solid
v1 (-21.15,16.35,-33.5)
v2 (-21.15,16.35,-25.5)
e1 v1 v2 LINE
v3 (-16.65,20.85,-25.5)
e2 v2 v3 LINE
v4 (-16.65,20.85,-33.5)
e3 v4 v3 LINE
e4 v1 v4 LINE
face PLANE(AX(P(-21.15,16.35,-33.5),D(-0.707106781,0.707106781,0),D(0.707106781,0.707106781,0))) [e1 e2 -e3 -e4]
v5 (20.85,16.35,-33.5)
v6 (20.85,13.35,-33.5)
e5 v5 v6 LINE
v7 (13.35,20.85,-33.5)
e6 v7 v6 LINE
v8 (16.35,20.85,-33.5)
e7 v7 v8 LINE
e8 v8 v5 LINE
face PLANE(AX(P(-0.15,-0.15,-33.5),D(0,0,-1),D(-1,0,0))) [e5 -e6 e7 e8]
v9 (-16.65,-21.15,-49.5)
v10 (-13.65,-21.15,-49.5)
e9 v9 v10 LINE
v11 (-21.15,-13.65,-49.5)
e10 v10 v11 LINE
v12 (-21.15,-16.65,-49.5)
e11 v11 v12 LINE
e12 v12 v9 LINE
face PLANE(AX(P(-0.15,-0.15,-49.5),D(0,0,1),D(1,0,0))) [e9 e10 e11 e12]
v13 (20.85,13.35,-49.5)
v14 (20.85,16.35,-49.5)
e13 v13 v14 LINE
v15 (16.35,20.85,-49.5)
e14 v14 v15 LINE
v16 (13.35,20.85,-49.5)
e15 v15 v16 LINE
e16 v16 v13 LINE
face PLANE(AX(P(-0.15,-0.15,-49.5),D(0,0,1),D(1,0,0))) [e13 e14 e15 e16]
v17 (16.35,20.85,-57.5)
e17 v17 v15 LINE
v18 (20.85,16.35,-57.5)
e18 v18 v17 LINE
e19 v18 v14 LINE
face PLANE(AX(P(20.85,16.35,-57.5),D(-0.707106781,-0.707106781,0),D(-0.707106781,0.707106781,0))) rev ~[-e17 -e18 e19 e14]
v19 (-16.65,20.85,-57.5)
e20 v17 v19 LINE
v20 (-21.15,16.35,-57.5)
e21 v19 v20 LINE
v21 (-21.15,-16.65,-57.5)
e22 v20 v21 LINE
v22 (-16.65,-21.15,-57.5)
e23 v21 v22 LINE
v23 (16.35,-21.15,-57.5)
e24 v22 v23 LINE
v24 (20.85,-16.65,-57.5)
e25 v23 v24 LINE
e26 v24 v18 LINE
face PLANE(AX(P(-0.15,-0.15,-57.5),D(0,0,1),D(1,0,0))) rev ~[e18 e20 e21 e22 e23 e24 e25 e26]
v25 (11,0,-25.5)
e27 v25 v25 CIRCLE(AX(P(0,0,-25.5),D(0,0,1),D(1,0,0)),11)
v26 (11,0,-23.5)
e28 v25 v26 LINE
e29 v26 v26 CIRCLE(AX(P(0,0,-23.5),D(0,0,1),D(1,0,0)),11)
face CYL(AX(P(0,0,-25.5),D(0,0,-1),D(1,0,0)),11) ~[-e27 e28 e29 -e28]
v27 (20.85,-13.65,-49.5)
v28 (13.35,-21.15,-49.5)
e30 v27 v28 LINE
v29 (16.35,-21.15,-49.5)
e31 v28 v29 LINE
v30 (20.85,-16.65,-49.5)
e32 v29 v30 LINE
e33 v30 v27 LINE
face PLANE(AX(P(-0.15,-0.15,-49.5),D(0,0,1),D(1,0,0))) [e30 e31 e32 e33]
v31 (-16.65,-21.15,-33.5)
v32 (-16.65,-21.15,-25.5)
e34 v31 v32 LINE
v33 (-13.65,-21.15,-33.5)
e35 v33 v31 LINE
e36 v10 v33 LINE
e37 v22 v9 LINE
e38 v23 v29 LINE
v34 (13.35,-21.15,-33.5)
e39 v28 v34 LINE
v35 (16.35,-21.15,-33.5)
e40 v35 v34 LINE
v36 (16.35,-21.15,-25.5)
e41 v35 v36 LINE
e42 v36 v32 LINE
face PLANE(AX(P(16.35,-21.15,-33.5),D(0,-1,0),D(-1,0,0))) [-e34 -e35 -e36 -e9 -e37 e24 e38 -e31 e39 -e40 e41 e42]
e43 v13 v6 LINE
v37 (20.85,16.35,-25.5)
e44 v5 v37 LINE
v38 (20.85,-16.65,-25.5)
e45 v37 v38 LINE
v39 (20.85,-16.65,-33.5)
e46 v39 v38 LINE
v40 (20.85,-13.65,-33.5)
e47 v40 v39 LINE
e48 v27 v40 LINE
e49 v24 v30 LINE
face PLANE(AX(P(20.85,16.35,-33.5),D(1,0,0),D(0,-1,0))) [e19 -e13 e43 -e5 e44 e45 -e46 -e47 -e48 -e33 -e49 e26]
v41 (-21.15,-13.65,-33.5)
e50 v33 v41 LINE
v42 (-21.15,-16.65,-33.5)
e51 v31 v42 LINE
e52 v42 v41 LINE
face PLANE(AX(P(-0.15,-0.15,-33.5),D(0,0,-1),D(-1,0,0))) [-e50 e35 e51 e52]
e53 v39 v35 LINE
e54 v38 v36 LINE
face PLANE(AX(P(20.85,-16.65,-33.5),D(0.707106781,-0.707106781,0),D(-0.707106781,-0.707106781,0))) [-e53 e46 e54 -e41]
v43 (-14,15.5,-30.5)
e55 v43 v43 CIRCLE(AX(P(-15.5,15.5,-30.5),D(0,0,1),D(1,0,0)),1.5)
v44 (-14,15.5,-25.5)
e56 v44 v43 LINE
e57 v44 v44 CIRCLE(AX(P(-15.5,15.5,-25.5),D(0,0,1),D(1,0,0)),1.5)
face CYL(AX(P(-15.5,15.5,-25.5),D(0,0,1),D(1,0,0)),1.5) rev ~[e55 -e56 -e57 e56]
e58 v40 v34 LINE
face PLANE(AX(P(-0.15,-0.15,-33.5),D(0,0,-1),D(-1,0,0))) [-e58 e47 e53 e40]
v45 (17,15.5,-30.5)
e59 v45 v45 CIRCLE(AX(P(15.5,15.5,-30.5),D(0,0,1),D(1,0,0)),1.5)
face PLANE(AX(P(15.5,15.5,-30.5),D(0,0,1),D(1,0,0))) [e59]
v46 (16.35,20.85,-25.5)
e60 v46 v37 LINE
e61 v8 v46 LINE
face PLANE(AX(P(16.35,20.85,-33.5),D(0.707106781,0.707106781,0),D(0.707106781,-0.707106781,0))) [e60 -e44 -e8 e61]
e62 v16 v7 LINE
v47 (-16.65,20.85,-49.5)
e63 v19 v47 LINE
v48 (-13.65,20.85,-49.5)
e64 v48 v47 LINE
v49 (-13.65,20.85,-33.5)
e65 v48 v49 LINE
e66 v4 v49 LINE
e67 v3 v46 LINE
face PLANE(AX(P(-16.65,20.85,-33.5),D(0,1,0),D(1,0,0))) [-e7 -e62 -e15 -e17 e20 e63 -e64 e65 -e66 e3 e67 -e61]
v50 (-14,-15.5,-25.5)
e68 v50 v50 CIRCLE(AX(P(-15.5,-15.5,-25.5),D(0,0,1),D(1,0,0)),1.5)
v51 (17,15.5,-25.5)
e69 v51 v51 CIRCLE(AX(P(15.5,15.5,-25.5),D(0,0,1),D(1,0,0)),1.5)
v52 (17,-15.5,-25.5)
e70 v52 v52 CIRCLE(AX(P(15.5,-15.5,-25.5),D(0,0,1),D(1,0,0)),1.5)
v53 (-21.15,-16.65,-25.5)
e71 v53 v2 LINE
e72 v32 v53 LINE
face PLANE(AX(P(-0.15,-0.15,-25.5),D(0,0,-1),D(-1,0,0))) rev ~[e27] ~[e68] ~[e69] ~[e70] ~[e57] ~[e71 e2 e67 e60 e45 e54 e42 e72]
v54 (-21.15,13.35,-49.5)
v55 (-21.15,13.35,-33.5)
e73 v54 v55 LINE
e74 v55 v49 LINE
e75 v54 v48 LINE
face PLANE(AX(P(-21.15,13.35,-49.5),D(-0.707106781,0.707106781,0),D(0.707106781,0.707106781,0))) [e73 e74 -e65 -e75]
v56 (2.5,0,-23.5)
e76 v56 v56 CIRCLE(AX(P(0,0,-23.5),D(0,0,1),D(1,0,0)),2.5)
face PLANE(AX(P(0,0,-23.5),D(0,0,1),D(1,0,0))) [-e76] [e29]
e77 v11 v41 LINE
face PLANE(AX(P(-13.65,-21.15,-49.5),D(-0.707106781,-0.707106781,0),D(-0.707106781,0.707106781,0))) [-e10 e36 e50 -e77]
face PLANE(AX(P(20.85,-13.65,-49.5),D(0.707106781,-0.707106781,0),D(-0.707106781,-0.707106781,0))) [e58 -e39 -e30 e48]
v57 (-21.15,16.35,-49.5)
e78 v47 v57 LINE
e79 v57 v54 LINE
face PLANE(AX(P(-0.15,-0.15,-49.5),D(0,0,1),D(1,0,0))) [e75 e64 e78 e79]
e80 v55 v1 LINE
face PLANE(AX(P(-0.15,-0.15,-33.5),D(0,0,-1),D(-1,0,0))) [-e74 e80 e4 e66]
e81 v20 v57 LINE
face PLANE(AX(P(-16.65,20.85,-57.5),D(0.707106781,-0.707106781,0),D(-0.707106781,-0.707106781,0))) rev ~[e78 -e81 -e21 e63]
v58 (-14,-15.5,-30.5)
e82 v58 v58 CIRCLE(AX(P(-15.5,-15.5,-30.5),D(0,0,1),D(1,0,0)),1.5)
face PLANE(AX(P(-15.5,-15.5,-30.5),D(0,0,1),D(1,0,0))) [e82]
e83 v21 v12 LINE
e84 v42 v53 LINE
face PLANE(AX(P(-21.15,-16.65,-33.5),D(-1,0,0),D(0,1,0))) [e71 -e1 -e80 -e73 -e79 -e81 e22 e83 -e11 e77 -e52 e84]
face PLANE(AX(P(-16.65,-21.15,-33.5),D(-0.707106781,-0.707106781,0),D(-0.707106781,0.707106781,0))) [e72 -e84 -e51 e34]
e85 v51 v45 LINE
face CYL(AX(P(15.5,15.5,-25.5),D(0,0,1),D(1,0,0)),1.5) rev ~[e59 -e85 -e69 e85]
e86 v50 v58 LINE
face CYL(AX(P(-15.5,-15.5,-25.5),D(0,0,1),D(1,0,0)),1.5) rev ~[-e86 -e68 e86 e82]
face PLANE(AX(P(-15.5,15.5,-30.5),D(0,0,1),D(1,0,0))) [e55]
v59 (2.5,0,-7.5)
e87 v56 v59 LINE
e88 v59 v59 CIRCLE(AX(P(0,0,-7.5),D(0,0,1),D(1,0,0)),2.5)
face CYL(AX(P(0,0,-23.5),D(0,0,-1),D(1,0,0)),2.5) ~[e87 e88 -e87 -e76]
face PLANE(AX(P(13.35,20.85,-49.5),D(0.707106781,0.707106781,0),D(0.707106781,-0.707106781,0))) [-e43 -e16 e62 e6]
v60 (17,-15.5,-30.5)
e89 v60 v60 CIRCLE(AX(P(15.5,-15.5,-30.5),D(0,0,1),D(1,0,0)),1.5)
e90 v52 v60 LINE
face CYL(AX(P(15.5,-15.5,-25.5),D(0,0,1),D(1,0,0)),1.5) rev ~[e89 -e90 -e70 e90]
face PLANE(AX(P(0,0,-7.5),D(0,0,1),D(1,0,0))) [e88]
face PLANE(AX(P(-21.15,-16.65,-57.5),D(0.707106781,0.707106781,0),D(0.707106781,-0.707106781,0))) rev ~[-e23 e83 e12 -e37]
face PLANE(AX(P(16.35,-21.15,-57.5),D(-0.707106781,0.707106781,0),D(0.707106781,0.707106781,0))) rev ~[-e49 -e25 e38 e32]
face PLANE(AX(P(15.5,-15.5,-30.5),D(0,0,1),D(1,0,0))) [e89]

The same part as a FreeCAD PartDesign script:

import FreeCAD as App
import Part
import Sketcher

doc = App.newDocument("Part")
body = doc.addObject("PartDesign::Body", "Body")

# Sketch on XY plane
sketch1 = doc.addObject("Sketcher::SketchObject", "Sketch")
body.addObject(sketch1)
sketch1.AttachmentSupport = (doc.XY_Plane, [""])
sketch1.MapMode = "FlatFace"
sketch1.addGeometry([
    Part.LineSegment(App.Vector(4.5, -4.5, 0), App.Vector(37.5, -4.5, 0)),  # 0
    Part.LineSegment(App.Vector(37.5, -4.5, 0), App.Vector(42, 0, 0)),  # 1
    Part.LineSegment(App.Vector(42, 0, 0), App.Vector(42, 33, 0)),  # 2
    Part.LineSegment(App.Vector(42, 33, 0), App.Vector(37.5, 37.5, 0)),  # 3
    Part.LineSegment(App.Vector(37.5, 37.5, 0), App.Vector(4.5, 37.5, 0)),  # 4
    Part.LineSegment(App.Vector(4.5, 37.5, 0), App.Vector(0, 33, 0)),  # 5
    Part.LineSegment(App.Vector(0, 33, 0), App.Vector(0, 0, 0)),  # 6
    Part.LineSegment(App.Vector(0, 0, 0), App.Vector(4.5, -4.5, 0)),  # 7
], False)
sketch1.addConstraint([
    Sketcher.Constraint("Coincident", 0, 2, 1, 1),
    Sketcher.Constraint("Coincident", 1, 2, 2, 1),
    Sketcher.Constraint("Coincident", 2, 2, 3, 1),
    Sketcher.Constraint("Coincident", 3, 2, 4, 1),
    Sketcher.Constraint("Coincident", 4, 2, 5, 1),
    Sketcher.Constraint("Coincident", 5, 2, 6, 1),
    Sketcher.Constraint("Coincident", 6, 2, 7, 1),
    Sketcher.Constraint("Coincident", 7, 2, 0, 1),
    Sketcher.Constraint("Horizontal", 0),
    Sketcher.Constraint("Vertical", 2),
    Sketcher.Constraint("Horizontal", 4),
    Sketcher.Constraint("Vertical", 6),
    Sketcher.Constraint("Coincident", 6, 2, -1, 1),
    Sketcher.Constraint("PointOnObject", 1, 2, -1),
    Sketcher.Constraint("Perpendicular", 1, 3),
    Sketcher.Constraint("Perpendicular", 3, 5),
    Sketcher.Constraint("Perpendicular", 5, 7),
    Sketcher.Constraint("Horizontal", 2, 2, 5, 2),
    Sketcher.Constraint("Vertical", 0, 2, 3, 2),
    Sketcher.Constraint("Vertical", 4, 2, 7, 2),
    Sketcher.Constraint("Equal", 4, 2),
    Sketcher.Constraint("DistanceX", 0, 1, 0, 2, 33.0),
    Sketcher.Constraint("DistanceX", -1, 1, 1, 2, 42.0),
])
pad1 = doc.addObject("PartDesign::Pad", "Pad")
body.addObject(pad1)
pad1.Profile = sketch1
pad1.Length = 8

# Sketch on XY plane
sketch2 = doc.addObject("Sketcher::SketchObject", "Sketch001")
body.addObject(sketch2)
sketch2.AttachmentSupport = (doc.XY_Plane, [""])
sketch2.MapMode = "FlatFace"
sketch2.AttachmentOffset = App.Placement(App.Vector(0, 0, 8), App.Rotation())
sketch2.addGeometry([
    Part.LineSegment(App.Vector(34.5, 37.5, 0), App.Vector(7.5, 37.5, 0)),  # 0
    Part.LineSegment(App.Vector(7.5, 37.5, 0), App.Vector(0, 30, 0)),  # 1
    Part.LineSegment(App.Vector(0, 30, 0), App.Vector(0, 3, 0)),  # 2
    Part.LineSegment(App.Vector(0, 3, 0), App.Vector(7.5, -4.5, 0)),  # 3
    Part.LineSegment(App.Vector(7.5, -4.5, 0), App.Vector(34.5, -4.5, 0)),  # 4
    Part.LineSegment(App.Vector(34.5, -4.5, 0), App.Vector(42, 3, 0)),  # 5
    Part.LineSegment(App.Vector(42, 3, 0), App.Vector(42, 30, 0)),  # 6
    Part.LineSegment(App.Vector(42, 30, 0), App.Vector(34.5, 37.5, 0)),  # 7
], False)
sketch2.addConstraint([
    Sketcher.Constraint("Coincident", 0, 2, 1, 1),
    Sketcher.Constraint("Coincident", 1, 2, 2, 1),
    Sketcher.Constraint("Coincident", 2, 2, 3, 1),
    Sketcher.Constraint("Coincident", 3, 2, 4, 1),
    Sketcher.Constraint("Coincident", 4, 2, 5, 1),
    Sketcher.Constraint("Coincident", 5, 2, 6, 1),
    Sketcher.Constraint("Coincident", 6, 2, 7, 1),
    Sketcher.Constraint("Coincident", 7, 2, 0, 1),
    Sketcher.Constraint("Horizontal", 0),
    Sketcher.Constraint("Vertical", 2),
    Sketcher.Constraint("Horizontal", 4),
    Sketcher.Constraint("Vertical", 6),
    Sketcher.Constraint("PointOnObject", 1, 2, -2),
    Sketcher.Constraint("Perpendicular", 1, 3),
    Sketcher.Constraint("Perpendicular", 3, 5),
    Sketcher.Constraint("Perpendicular", 5, 7),
    Sketcher.Constraint("Horizontal", 2, 2, 5, 2),
    Sketcher.Constraint("Horizontal", 1, 2, 6, 2),
    Sketcher.Constraint("Vertical", 0, 2, 3, 2),
    Sketcher.Constraint("Vertical", 4, 2, 7, 2),
    Sketcher.Constraint("Equal", 4, 2),
    Sketcher.Constraint("DistanceX", 0, 2, 0, 1, 27.0),
    Sketcher.Constraint("DistanceY", -1, 1, 1, 2, 30.0),
    Sketcher.Constraint("DistanceX", -1, 1, 5, 2, 42.0),
])
pad2 = doc.addObject("PartDesign::Pad", "Pad001")
body.addObject(pad2)
pad2.Profile = sketch2
pad2.Length = 16

# Sketch on XY plane
sketch3 = doc.addObject("Sketcher::SketchObject", "Sketch002")
body.addObject(sketch3)
sketch3.AttachmentSupport = (doc.XY_Plane, [""])
sketch3.MapMode = "FlatFace"
sketch3.AttachmentOffset = App.Placement(App.Vector(0, 0, 24), App.Rotation())
sketch3.addGeometry([
    Part.LineSegment(App.Vector(37.5, 37.5, 0), App.Vector(4.5, 37.5, 0)),  # 0
    Part.LineSegment(App.Vector(4.5, 37.5, 0), App.Vector(0, 33, 0)),  # 1
    Part.LineSegment(App.Vector(0, 33, 0), App.Vector(0, 0, 0)),  # 2
    Part.LineSegment(App.Vector(0, 0, 0), App.Vector(4.5, -4.5, 0)),  # 3
    Part.LineSegment(App.Vector(4.5, -4.5, 0), App.Vector(37.5, -4.5, 0)),  # 4
    Part.LineSegment(App.Vector(37.5, -4.5, 0), App.Vector(42, 0, 0)),  # 5
    Part.LineSegment(App.Vector(42, 0, 0), App.Vector(42, 33, 0)),  # 6
    Part.LineSegment(App.Vector(42, 33, 0), App.Vector(37.5, 37.5, 0)),  # 7
], False)
sketch3.addConstraint([
    Sketcher.Constraint("Coincident", 0, 2, 1, 1),
    Sketcher.Constraint("Coincident", 1, 2, 2, 1),
    Sketcher.Constraint("Coincident", 2, 2, 3, 1),
    Sketcher.Constraint("Coincident", 3, 2, 4, 1),
    Sketcher.Constraint("Coincident", 4, 2, 5, 1),
    Sketcher.Constraint("Coincident", 5, 2, 6, 1),
    Sketcher.Constraint("Coincident", 6, 2, 7, 1),
    Sketcher.Constraint("Coincident", 7, 2, 0, 1),
    Sketcher.Constraint("Horizontal", 0),
    Sketcher.Constraint("Vertical", 2),
    Sketcher.Constraint("Horizontal", 4),
    Sketcher.Constraint("Vertical", 6),
    Sketcher.Constraint("Coincident", 2, 2, -1, 1),
    Sketcher.Constraint("PointOnObject", 5, 2, -1),
    Sketcher.Constraint("Perpendicular", 1, 3),
    Sketcher.Constraint("Perpendicular", 3, 5),
    Sketcher.Constraint("Perpendicular", 5, 7),
    Sketcher.Constraint("Horizontal", 1, 2, 6, 2),
    Sketcher.Constraint("Vertical", 0, 2, 3, 2),
    Sketcher.Constraint("Vertical", 4, 2, 7, 2),
    Sketcher.Constraint("Equal", 4, 2),
    Sketcher.Constraint("DistanceX", 0, 2, 0, 1, 33.0),
    Sketcher.Constraint("DistanceX", -1, 1, 5, 2, 42.0),
])
pad3 = doc.addObject("PartDesign::Pad", "Pad002")
body.addObject(pad3)
pad3.Profile = sketch3
pad3.Length = 8

# Sketch on XY plane
sketch4 = doc.addObject("Sketcher::SketchObject", "Sketch003")
body.addObject(sketch4)
sketch4.AttachmentSupport = (doc.XY_Plane, [""])
sketch4.MapMode = "FlatFace"
sketch4.AttachmentOffset = App.Placement(App.Vector(0, 0, 32), App.Rotation())
sketch4.addGeometry(Part.Circle(App.Vector(21.15, 16.65, 0), App.Vector(0, 0, 1), 11), False)
sketch4.addConstraint([
    Sketcher.Constraint("Diameter", 0, 22.0),
    Sketcher.Constraint("DistanceX", -1, 1, 0, 3, 21.15),
    Sketcher.Constraint("DistanceY", -1, 1, 0, 3, 16.65),
])
pad4 = doc.addObject("PartDesign::Pad", "Pad003")
body.addObject(pad4)
pad4.Profile = sketch4
pad4.Length = 2

# Sketch on XY plane
sketch5 = doc.addObject("Sketcher::SketchObject", "Sketch004")
body.addObject(sketch5)
sketch5.AttachmentSupport = (doc.XY_Plane, [""])
sketch5.MapMode = "FlatFace"
sketch5.AttachmentOffset = App.Placement(App.Vector(0, 0, 34), App.Rotation())
sketch5.addGeometry(Part.Circle(App.Vector(21.15, 16.65, 0), App.Vector(0, 0, 1), 2.5), False)
sketch5.addConstraint([
    Sketcher.Constraint("Diameter", 0, 5.0),
    Sketcher.Constraint("DistanceX", -1, 1, 0, 3, 21.15),
    Sketcher.Constraint("DistanceY", -1, 1, 0, 3, 16.65),
])
pad5 = doc.addObject("PartDesign::Pad", "Pad004")
body.addObject(pad5)
pad5.Profile = sketch5
pad5.Length = 16

# Sketch on XY plane
sketch6 = doc.addObject("Sketcher::SketchObject", "Sketch005")
body.addObject(sketch6)
sketch6.AttachmentSupport = (doc.XY_Plane, [""])
sketch6.MapMode = "FlatFace"
sketch6.AttachmentOffset = App.Placement(App.Vector(0, 0, 32), App.Rotation())
sketch6.addGeometry([
    Part.Circle(App.Vector(5.65, 1.15, 0), App.Vector(0, 0, 1), 1.5),
    Part.Circle(App.Vector(36.65, 1.15, 0), App.Vector(0, 0, 1), 1.5),
    Part.Circle(App.Vector(36.65, 32.15, 0), App.Vector(0, 0, 1), 1.5),
    Part.Circle(App.Vector(5.65, 32.15, 0), App.Vector(0, 0, 1), 1.5),
], False)
sketch6.addConstraint([
    Sketcher.Constraint("Equal", 0, 1),
    Sketcher.Constraint("Equal", 1, 2),
    Sketcher.Constraint("Equal", 2, 3),
    Sketcher.Constraint("Horizontal", 0, 3, 1, 3),
    Sketcher.Constraint("Horizontal", 2, 3, 3, 3),
    Sketcher.Constraint("Vertical", 1, 3, 2, 3),
    Sketcher.Constraint("Vertical", 0, 3, 3, 3),
    Sketcher.Constraint("Diameter", 0, 3.0),
    Sketcher.Constraint("DistanceX", 0, 3, 1, 3, 31.0),
    Sketcher.Constraint("DistanceY", 1, 3, 2, 3, 31.0),
    Sketcher.Constraint("DistanceX", -1, 1, 0, 3, 5.65),
    Sketcher.Constraint("DistanceY", -1, 1, 0, 3, 1.15),
])
pocket1 = doc.addObject("PartDesign::Pocket", "Pocket")
body.addObject(pocket1)
pocket1.Profile = sketch6
pocket1.Length = 5
body2 = doc.addObject("PartDesign::Body", "Body001")
doc.recompute()

body.Placement = App.Placement(App.Vector(-21.15, -16.65, -57.5), App.Rotation(App.Vector(0, 0, 1), 0))
boolean = doc.addObject("PartDesign::Boolean", "Boolean")
body2.addObject(boolean)
boolean.Type = "Fuse"
boolean.addObjects([body])

doc.recompute()
